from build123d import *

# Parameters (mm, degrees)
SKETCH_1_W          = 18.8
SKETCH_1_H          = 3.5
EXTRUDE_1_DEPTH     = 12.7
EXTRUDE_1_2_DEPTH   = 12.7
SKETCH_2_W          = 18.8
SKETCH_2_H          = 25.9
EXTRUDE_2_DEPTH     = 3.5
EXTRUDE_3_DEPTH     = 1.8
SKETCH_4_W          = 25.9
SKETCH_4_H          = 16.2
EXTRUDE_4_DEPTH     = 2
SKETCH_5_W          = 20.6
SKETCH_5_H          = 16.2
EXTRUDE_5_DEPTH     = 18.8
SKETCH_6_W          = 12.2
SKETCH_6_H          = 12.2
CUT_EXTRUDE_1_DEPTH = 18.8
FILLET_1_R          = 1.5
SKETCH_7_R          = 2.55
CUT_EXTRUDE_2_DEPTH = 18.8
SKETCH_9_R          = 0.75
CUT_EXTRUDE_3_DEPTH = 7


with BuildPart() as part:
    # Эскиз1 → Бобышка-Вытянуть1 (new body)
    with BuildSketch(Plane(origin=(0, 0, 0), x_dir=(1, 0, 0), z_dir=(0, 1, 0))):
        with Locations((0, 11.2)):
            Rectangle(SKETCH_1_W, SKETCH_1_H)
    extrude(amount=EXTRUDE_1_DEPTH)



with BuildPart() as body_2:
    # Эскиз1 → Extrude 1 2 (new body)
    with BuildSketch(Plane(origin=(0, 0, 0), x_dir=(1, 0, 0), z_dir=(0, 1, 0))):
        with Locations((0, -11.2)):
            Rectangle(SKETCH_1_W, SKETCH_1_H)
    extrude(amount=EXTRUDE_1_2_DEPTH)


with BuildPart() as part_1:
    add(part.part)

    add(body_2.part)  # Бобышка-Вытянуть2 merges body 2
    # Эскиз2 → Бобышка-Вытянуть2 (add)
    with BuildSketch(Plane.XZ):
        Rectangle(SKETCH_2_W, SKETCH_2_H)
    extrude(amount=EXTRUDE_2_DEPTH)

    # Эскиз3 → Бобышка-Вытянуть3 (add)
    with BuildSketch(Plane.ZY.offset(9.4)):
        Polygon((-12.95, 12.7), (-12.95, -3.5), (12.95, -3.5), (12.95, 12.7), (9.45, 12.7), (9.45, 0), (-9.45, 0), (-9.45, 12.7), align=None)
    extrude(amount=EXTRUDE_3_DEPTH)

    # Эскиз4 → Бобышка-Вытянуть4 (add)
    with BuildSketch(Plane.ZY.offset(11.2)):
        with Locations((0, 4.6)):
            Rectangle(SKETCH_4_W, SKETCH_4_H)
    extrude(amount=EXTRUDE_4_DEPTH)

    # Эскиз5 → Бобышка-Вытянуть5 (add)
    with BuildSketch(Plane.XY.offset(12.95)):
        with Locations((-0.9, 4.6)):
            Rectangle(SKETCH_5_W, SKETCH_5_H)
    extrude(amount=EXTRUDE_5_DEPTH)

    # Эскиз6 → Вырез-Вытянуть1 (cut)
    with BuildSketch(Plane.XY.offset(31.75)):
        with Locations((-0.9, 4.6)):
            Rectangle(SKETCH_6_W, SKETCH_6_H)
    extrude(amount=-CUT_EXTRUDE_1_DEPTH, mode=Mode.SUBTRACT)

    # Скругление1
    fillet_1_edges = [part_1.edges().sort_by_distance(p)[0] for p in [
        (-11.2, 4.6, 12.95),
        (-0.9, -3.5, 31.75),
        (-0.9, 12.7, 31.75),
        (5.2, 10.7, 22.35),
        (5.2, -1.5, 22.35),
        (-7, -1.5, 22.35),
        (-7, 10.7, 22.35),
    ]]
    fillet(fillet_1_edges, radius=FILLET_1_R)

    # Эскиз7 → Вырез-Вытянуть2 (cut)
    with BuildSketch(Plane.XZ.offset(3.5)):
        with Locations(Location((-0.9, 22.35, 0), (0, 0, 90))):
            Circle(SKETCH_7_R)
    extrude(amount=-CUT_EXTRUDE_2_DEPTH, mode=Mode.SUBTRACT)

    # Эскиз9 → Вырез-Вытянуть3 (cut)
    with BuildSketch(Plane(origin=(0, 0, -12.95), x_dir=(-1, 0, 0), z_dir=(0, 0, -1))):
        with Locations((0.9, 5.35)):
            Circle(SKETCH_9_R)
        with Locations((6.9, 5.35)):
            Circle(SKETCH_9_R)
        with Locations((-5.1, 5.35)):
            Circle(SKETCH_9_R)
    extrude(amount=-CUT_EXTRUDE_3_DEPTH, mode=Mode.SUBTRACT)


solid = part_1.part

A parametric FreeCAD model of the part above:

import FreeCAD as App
import Part
import Sketcher
from FreeCAD import Vector


def edges_at(feature, points):
    """Names of the edges that pass closest to the given points."""
    edges = feature.Shape.Edges
    near = lambda p: min(range(len(edges)), key=lambda i: edges[i].distToShape(Part.Vertex(*p))[0])
    return sorted({f"Edge{near(p) + 1}" for p in points})


def add_polygon(sketch, points):
    """Adds a closed chain of lines whose ends are joined by coincident constraints."""
    first, n = sketch.GeometryCount, len(points)
    for a, b in zip(points, points[1:] + points[:1]):
        sketch.addGeometry(Part.LineSegment(App.Vector(*a, 0), App.Vector(*b, 0)), False)
    for i in range(n):
        sketch.addConstraint(Sketcher.Constraint("Coincident", first + i, 2, first + (i + 1) % n, 1))

doc = App.newDocument("Part")
body = doc.addObject("PartDesign::Body", "Body")

sketch1 = doc.addObject("Sketcher::SketchObject", "Sketch")
body.addObject(sketch1)
sketch1.AttachmentSupport = (doc.XZ_Plane, [""])
sketch1.MapMode = "FlatFace"
add_polygon(sketch1, [(-9.4, -12.9), (-9.4, -9.4), (9.4, -9.4), (9.4, -12.9)])
sketch1.addConstraint(Sketcher.Constraint("Vertical", 0))
sketch1.addConstraint(Sketcher.Constraint("Horizontal", 1))
sketch1.addConstraint(Sketcher.Constraint("Vertical", 2))
sketch1.addConstraint(Sketcher.Constraint("Horizontal", 3))
sketch1.addConstraint(Sketcher.Constraint("DistanceX", 1, 1, 1, 2, 18.8))
sketch1.addConstraint(Sketcher.Constraint("DistanceY", 0, 1, 0, 2, 3.5))
sketch1.addConstraint(Sketcher.Constraint("DistanceX", 0, 2, -1, 1, 9.4))
sketch1.addConstraint(Sketcher.Constraint("DistanceY", 0, 2, -1, 1, 9.45))
pad1 = doc.addObject("PartDesign::Pad", "Pad")
body.addObject(pad1)
pad1.Profile = sketch1
pad1.Length = 12.7
pad1.Reversed = True
body2 = doc.addObject("PartDesign::Body", "Body001")

sketch2 = doc.addObject("Sketcher::SketchObject", "Sketch001")
body2.addObject(sketch2)
sketch2.AttachmentSupport = (doc.getObject("XZ_Plane001"), [""])
sketch2.MapMode = "FlatFace"
add_polygon(sketch2, [(-9.4, 9.4), (-9.4, 12.9), (9.4, 12.9), (9.4, 9.4)])
sketch2.addConstraint(Sketcher.Constraint("Vertical", 0))
sketch2.addConstraint(Sketcher.Constraint("Horizontal", 1))
sketch2.addConstraint(Sketcher.Constraint("Vertical", 2))
sketch2.addConstraint(Sketcher.Constraint("Horizontal", 3))
sketch2.addConstraint(Sketcher.Constraint("DistanceX", 1, 1, 1, 2, 18.8))
sketch2.addConstraint(Sketcher.Constraint("DistanceY", 0, 1, 0, 2, 3.5))
sketch2.addConstraint(Sketcher.Constraint("DistanceX", 0, 2, -1, 1, 9.4))
sketch2.addConstraint(Sketcher.Constraint("DistanceY", -1, 1, 0, 2, 12.95))
pad2 = doc.addObject("PartDesign::Pad", "Pad001")
body2.addObject(pad2)
pad2.Profile = sketch2
pad2.Length = 12.7
pad2.Reversed = True
body.AllowCompound = True
doc.recompute()

boolean = doc.addObject("PartDesign::Boolean", "Boolean")
body.addObject(boolean)
boolean.Type = "Fuse"
boolean.addObjects([body2])

sketch3 = doc.addObject("Sketcher::SketchObject", "Sketch002")
body.addObject(sketch3)
sketch3.AttachmentSupport = (doc.XZ_Plane, [""])
sketch3.MapMode = "FlatFace"
add_polygon(sketch3, [(-9, 13), (-9, -13), (9, -13), (9, 13)])
sketch3.addConstraint(Sketcher.Constraint("Vertical", 0))
sketch3.addConstraint(Sketcher.Constraint("Horizontal", 1))
sketch3.addConstraint(Sketcher.Constraint("Vertical", 2))
sketch3.addConstraint(Sketcher.Constraint("Horizontal", 3))
sketch3.addConstraint(Sketcher.Constraint("Symmetric", 0, 2, 2, 2, -1, 1))
sketch3.addConstraint(Sketcher.Constraint("DistanceX", 1, 1, 1, 2, 18.8))
sketch3.addConstraint(Sketcher.Constraint("DistanceY", 0, 2, 0, 1, 25.9))
pad3 = doc.addObject("PartDesign::Pad", "Pad002")
body.addObject(pad3)
pad3.Profile = sketch3
pad3.Length = 3.5

sketch4 = doc.addObject("Sketcher::SketchObject", "Sketch003")
body.addObject(sketch4)
sketch4.AttachmentSupport = (doc.YZ_Plane, [""])
sketch4.MapMode = "FlatFace"
sketch4.AttachmentOffset = App.Placement(Vector(0, 0, -9.4), App.Rotation())
add_polygon(sketch4, [(12.7, -12.9), (-3.5, -12.9), (-3.5, 12.9), (12.7, 12.9), (12.7, 9.4), (0, 9.4), (0, -9.4), (12.7, -9.4)])
sketch4.addConstraint(Sketcher.Constraint("Horizontal", 0))
sketch4.addConstraint(Sketcher.Constraint("Vertical", 1))
sketch4.addConstraint(Sketcher.Constraint("Horizontal", 2))
sketch4.addConstraint(Sketcher.Constraint("Vertical", 3))
sketch4.addConstraint(Sketcher.Constraint("Horizontal", 4))
sketch4.addConstraint(Sketcher.Constraint("Vertical", 5))
sketch4.addConstraint(Sketcher.Constraint("Horizontal", 6))
sketch4.addConstraint(Sketcher.Constraint("Vertical", 7))
sketch4.addConstraint(Sketcher.Constraint("Symmetric", 4, 2, 5, 2, -1, 1))
sketch4.addConstraint(Sketcher.Constraint("Symmetric", 2, 2, 7, 2, -1))
sketch4.addConstraint(Sketcher.Constraint("DistanceX", 0, 2, 0, 1, 16.2))
sketch4.addConstraint(Sketcher.Constraint("DistanceX", 4, 2, 4, 1, 12.7))
sketch4.addConstraint(Sketcher.Constraint("DistanceY", 1, 1, 1, 2, 25.9))
sketch4.addConstraint(Sketcher.Constraint("DistanceY", 3, 2, 3, 1, 3.5))
pad4 = doc.addObject("PartDesign::Pad", "Pad003")
body.addObject(pad4)
pad4.Profile = sketch4
pad4.Length = 1.8
pad4.Reversed = True

sketch5 = doc.addObject("Sketcher::SketchObject", "Sketch004")
body.addObject(sketch5)
sketch5.AttachmentSupport = (doc.YZ_Plane, [""])
sketch5.MapMode = "FlatFace"
sketch5.AttachmentOffset = App.Placement(Vector(0, 0, -11.2), App.Rotation())
add_polygon(sketch5, [(13, -13), (-4, -13), (-4, 13), (13, 13)])
sketch5.addConstraint(Sketcher.Constraint("Horizontal", 0))
sketch5.addConstraint(Sketcher.Constraint("Vertical", 1))
sketch5.addConstraint(Sketcher.Constraint("Horizontal", 2))
sketch5.addConstraint(Sketcher.Constraint("Vertical", 3))
sketch5.addConstraint(Sketcher.Constraint("DistanceX", 0, 2, 0, 1, 16.2))
sketch5.addConstraint(Sketcher.Constraint("DistanceY", 1, 1, 1, 2, 25.9))
sketch5.addConstraint(Sketcher.Constraint("DistanceX", 0, 2, -1, 1, 3.5))
sketch5.addConstraint(Sketcher.Constraint("DistanceY", 0, 2, -1, 1, 12.95))
pad5 = doc.addObject("PartDesign::Pad", "Pad004")
body.addObject(pad5)
pad5.Profile = sketch5
pad5.Length = 2
pad5.Reversed = True

sketch6 = doc.addObject("Sketcher::SketchObject", "Sketch005")
body.addObject(sketch6)
sketch6.AttachmentSupport = (doc.XY_Plane, [""])
sketch6.MapMode = "FlatFace"
sketch6.AttachmentOffset = App.Placement(Vector(0, 0, 12.95), App.Rotation())
add_polygon(sketch6, [(-11, 13), (-11, -4), (9, -4), (9, 13)])
sketch6.addConstraint(Sketcher.Constraint("Vertical", 0))
sketch6.addConstraint(Sketcher.Constraint("Horizontal", 1))
sketch6.addConstraint(Sketcher.Constraint("Vertical", 2))
sketch6.addConstraint(Sketcher.Constraint("Horizontal", 3))
sketch6.addConstraint(Sketcher.Constraint("DistanceX", 1, 1, 1, 2, 20.6))
sketch6.addConstraint(Sketcher.Constraint("DistanceY", 0, 2, 0, 1, 16.2))
sketch6.addConstraint(Sketcher.Constraint("DistanceX", 0, 2, -1, 1, 11.2))
sketch6.addConstraint(Sketcher.Constraint("DistanceY", 0, 2, -1, 1, 3.5))
pad6 = doc.addObject("PartDesign::Pad", "Pad005")
body.addObject(pad6)
pad6.Profile = sketch6
pad6.Length = 18.8

sketch7 = doc.addObject("Sketcher::SketchObject", "Sketch006")
body.addObject(sketch7)
sketch7.AttachmentSupport = (doc.XY_Plane, [""])
sketch7.MapMode = "FlatFace"
sketch7.AttachmentOffset = App.Placement(Vector(0, 0, 31.75), App.Rotation())
add_polygon(sketch7, [(-7, 11), (-7, -2), (5, -2), (5, 11)])
sketch7.addConstraint(Sketcher.Constraint("Vertical", 0))
sketch7.addConstraint(Sketcher.Constraint("Horizontal", 1))
sketch7.addConstraint(Sketcher.Constraint("Vertical", 2))
sketch7.addConstraint(Sketcher.Constraint("Horizontal", 3))
sketch7.addConstraint(Sketcher.Constraint("Equal", 3, 0))
sketch7.addConstraint(Sketcher.Constraint("DistanceX", 1, 1, 1, 2, 12.2))
sketch7.addConstraint(Sketcher.Constraint("DistanceX", 0, 2, -1, 1, 7.0))
sketch7.addConstraint(Sketcher.Constraint("DistanceY", 0, 2, -1, 1, 1.5))
pocket1 = doc.addObject("PartDesign::Pocket", "Pocket")
body.addObject(pocket1)
pocket1.Profile = sketch7
pocket1.Length = 18.8
doc.recompute()

fillet = doc.addObject("PartDesign::Fillet", "Fillet")
body.addObject(fillet)
fillet.Base = (pocket1, edges_at(pocket1, [
    (-11.2, 4.6, 12.95),
    (-0.9, -3.5, 31.75),
    (-0.9, 12.7, 31.75),
    (5.2, 10.7, 22.35),
    (5.2, -1.5, 22.35),
    (-7, -1.5, 22.35),
    (-7, 10.7, 22.35),
]))
fillet.Radius = 1.5

sketch8 = doc.addObject("Sketcher::SketchObject", "Sketch007")
body.addObject(sketch8)
sketch8.AttachmentSupport = (doc.XZ_Plane, [""])
sketch8.MapMode = "FlatFace"
sketch8.AttachmentOffset = App.Placement(Vector(0, 0, 3.5), App.Rotation())
sketch8.addGeometry(Part.Circle(Vector(-0.9, 22.4, 0), Vector(0, 0, 1), 2.5), False)
sketch8.addConstraint(Sketcher.Constraint("Diameter", 0, 5.1))
sketch8.addConstraint(Sketcher.Constraint("DistanceX", 0, 3, -1, 1, 0.9))
sketch8.addConstraint(Sketcher.Constraint("DistanceY", -1, 1, 0, 3, 22.35))
pocket2 = doc.addObject("PartDesign::Pocket", "Pocket001")
body.addObject(pocket2)
pocket2.Profile = sketch8
pocket2.Length = 18.8

sketch9 = doc.addObject("Sketcher::SketchObject", "Sketch008")
body.addObject(sketch9)
sketch9.AttachmentSupport = (doc.XY_Plane, [""])
sketch9.MapMode = "FlatFace"
sketch9.AttachmentOffset = App.Placement(Vector(0, 0, -12.95), App.Rotation())
sketch9.addGeometry(Part.Circle(Vector(-0.9, 5.3, 0), Vector(0, 0, 1), 0.8), False)
sketch9.addGeometry(Part.Circle(Vector(-6.9, 5.3, 0), Vector(0, 0, 1), 0.8), False)
sketch9.addGeometry(Part.Circle(Vector(5.1, 5.3, 0), Vector(0, 0, 1), 0.8), False)
sketch9.addConstraint(Sketcher.Constraint("Equal", 0, 1))
sketch9.addConstraint(Sketcher.Constraint("Equal", 1, 2))
sketch9.addConstraint(Sketcher.Constraint("Horizontal", 0, 3, 1, 3))
sketch9.addConstraint(Sketcher.Constraint("Horizontal", 1, 3, 2, 3))
sketch9.addConstraint(Sketcher.Constraint("Diameter", 0, 1.5))
sketch9.addConstraint(Sketcher.Constraint("DistanceX", 1, 3, 0, 3, 6.0))
sketch9.addConstraint(Sketcher.Constraint("DistanceX", 0, 3, 2, 3, 6.0))
sketch9.addConstraint(Sketcher.Constraint("DistanceX", 0, 3, -1, 1, 0.9))
sketch9.addConstraint(Sketcher.Constraint("DistanceY", -1, 1, 0, 3, 5.35))
pocket3 = doc.addObject("PartDesign::Pocket", "Pocket002")
body.addObject(pocket3)
pocket3.Profile = sketch9
pocket3.Length = 7
pocket3.Reversed = True

doc.recompute()
